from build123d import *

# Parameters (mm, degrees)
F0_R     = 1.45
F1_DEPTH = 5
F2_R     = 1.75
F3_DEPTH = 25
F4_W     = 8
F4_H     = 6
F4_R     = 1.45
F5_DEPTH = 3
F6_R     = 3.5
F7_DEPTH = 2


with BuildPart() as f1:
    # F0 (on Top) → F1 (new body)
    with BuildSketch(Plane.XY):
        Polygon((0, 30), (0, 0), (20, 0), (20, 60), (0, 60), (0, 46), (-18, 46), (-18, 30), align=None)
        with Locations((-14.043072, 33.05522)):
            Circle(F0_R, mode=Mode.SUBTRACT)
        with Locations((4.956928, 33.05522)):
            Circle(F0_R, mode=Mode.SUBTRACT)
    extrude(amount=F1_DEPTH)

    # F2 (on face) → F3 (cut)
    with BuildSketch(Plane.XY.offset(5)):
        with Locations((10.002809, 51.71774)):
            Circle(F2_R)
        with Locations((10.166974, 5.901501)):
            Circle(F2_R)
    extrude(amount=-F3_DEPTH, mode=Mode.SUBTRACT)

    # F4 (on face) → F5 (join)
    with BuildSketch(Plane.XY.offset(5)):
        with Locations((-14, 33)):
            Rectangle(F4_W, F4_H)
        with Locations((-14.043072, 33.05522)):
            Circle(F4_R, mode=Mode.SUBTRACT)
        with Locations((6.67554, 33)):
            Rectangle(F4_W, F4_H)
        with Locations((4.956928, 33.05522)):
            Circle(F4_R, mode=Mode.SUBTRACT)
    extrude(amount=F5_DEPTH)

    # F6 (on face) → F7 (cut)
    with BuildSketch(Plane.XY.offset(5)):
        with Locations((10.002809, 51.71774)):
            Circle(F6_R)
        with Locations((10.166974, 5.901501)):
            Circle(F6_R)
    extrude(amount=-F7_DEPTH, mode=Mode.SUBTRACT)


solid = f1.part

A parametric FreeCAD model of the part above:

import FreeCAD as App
import Part
import Sketcher

V = App.Vector


def add_polygon(sketch, points):
    """Adds a closed chain of lines whose ends are joined by coincident constraints."""
    first, n = sketch.GeometryCount, len(points)
    for a, b in zip(points, points[1:] + points[:1]):
        sketch.addGeometry(Part.LineSegment(App.Vector(*a, 0), App.Vector(*b, 0)), False)
    for i in range(n):
        sketch.addConstraint(Sketcher.Constraint("Coincident", first + i, 2, first + (i + 1) % n, 1))

doc = App.newDocument("Part")
body = doc.addObject("PartDesign::Body", "Body")

# Sketch on XY plane
sketch1 = body.newObject("Sketcher::SketchObject", "Sketch")
sketch1.AttachmentSupport = (doc.getObject("XY_Plane"), [""])
sketch1.MapMode = "FlatFace"
add_polygon(sketch1, [(0, 30), (0, 0), (20, 0), (20, 60), (0, 60), (0, 46), (-18, 46), (-18, 30)])  # lines 0-7
sketch1.addGeometry(Part.Circle(V(-14, 33.1, 0), V(0, 0, 1), 1.4), False)  # 8
sketch1.addGeometry(Part.Circle(V(5, 33.1, 0), V(0, 0, 1), 1.4), False)  # 9
sketch1.addConstraint(Sketcher.Constraint("Vertical", 0))
sketch1.addConstraint(Sketcher.Constraint("Horizontal", 1))
sketch1.addConstraint(Sketcher.Constraint("Vertical", 2))
sketch1.addConstraint(Sketcher.Constraint("Horizontal", 3))
sketch1.addConstraint(Sketcher.Constraint("Vertical", 4))
sketch1.addConstraint(Sketcher.Constraint("Horizontal", 5))
sketch1.addConstraint(Sketcher.Constraint("Vertical", 6))
sketch1.addConstraint(Sketcher.Constraint("Horizontal", 7))
sketch1.addConstraint(Sketcher.Constraint("Coincident", 0, 2, -1, 1))
sketch1.addConstraint(Sketcher.Constraint("Equal", 8, 9))
sketch1.addConstraint(Sketcher.Constraint("PointOnObject", 3, 2, -2))
sketch1.addConstraint(Sketcher.Constraint("Horizontal", 8, 3, 9, 3))
sketch1.addConstraint(Sketcher.Constraint("Diameter", 8, 2.9))
sketch1.addConstraint(Sketcher.Constraint("DistanceX", 1, 1, 1, 2, 20.0))
sketch1.addConstraint(Sketcher.Constraint("DistanceX", 5, 2, 5, 1, 18.0))
sketch1.addConstraint(Sketcher.Constraint("DistanceY", 0, 2, 0, 1, 30.0))
sketch1.addConstraint(Sketcher.Constraint("DistanceY", 2, 1, 2, 2, 60.0))
sketch1.addConstraint(Sketcher.Constraint("DistanceY", 4, 2, 4, 1, 14.0))
sketch1.addConstraint(Sketcher.Constraint("DistanceX", 8, 3, 9, 3, 19.0))
sketch1.addConstraint(Sketcher.Constraint("DistanceY", -1, 1, 8, 3, 33.05522))
sketch1.addConstraint(Sketcher.Constraint("DistanceX", 8, 3, -1, 1, 14.043072))
pad1 = body.newObject("PartDesign::Pad", "Pad")
pad1.Profile = sketch1
pad1.Length = 5

# Sketch on XY plane
sketch2 = body.newObject("Sketcher::SketchObject", "Sketch001")
sketch2.AttachmentSupport = (doc.getObject("XY_Plane"), [""])
sketch2.MapMode = "FlatFace"
sketch2.AttachmentOffset = App.Placement(V(0, 0, 5), App.Rotation())
sketch2.addGeometry(Part.Circle(V(10, 51.7, 0), V(0, 0, 1), 1.8), False)
sketch2.addGeometry(Part.Circle(V(10.2, 5.9, 0), V(0, 0, 1), 1.8), False)
sketch2.addConstraint(Sketcher.Constraint("Equal", 0, 1))
sketch2.addConstraint(Sketcher.Constraint("Diameter", 0, 3.5))
sketch2.addConstraint(Sketcher.Constraint("DistanceY", -1, 1, 1, 3, 5.901501))
sketch2.addConstraint(Sketcher.Constraint("DistanceX", -1, 1, 0, 3, 10.002809))
sketch2.addConstraint(Sketcher.Constraint("DistanceY", -1, 1, 0, 3, 51.71774))
sketch2.addConstraint(Sketcher.Constraint("DistanceX", -1, 1, 1, 3, 10.166974))
pocket1 = body.newObject("PartDesign::Pocket", "Pocket")
pocket1.Profile = sketch2
pocket1.Length = 25

# Sketch on XY plane
sketch3 = body.newObject("Sketcher::SketchObject", "Sketch002")
sketch3.AttachmentSupport = (doc.getObject("XY_Plane"), [""])
sketch3.MapMode = "FlatFace"
sketch3.AttachmentOffset = App.Placement(V(0, 0, 5), App.Rotation())
add_polygon(sketch3, [(-18, 36), (-18, 30), (-10, 30), (-10, 36)])  # lines 0-3
sketch3.addGeometry(Part.Circle(V(-14, 33.1, 0), V(0, 0, 1), 1.4), False)  # 4
add_polygon(sketch3, [(2.7, 36), (2.7, 30), (10.7, 30), (10.7, 36)])  # lines 5-8
sketch3.addGeometry(Part.Circle(V(5, 33.1, 0), V(0, 0, 1), 1.4), False)  # 9
sketch3.addConstraint(Sketcher.Constraint("Vertical", 0))
sketch3.addConstraint(Sketcher.Constraint("Horizontal", 1))
sketch3.addConstraint(Sketcher.Constraint("Vertical", 2))
sketch3.addConstraint(Sketcher.Constraint("Horizontal", 3))
sketch3.addConstraint(Sketcher.Constraint("Vertical", 5))
sketch3.addConstraint(Sketcher.Constraint("Horizontal", 6))
sketch3.addConstraint(Sketcher.Constraint("Vertical", 7))
sketch3.addConstraint(Sketcher.Constraint("Horizontal", 8))
sketch3.addConstraint(Sketcher.Constraint("Equal", 4, 9))
sketch3.addConstraint(Sketcher.Constraint("Horizontal", 4, 3, 9, 3))
sketch3.addConstraint(Sketcher.Constraint("Horizontal", 1, 2, 5, 2))
sketch3.addConstraint(Sketcher.Constraint("Horizontal", 3, 2, 7, 2))
sketch3.addConstraint(Sketcher.Constraint("Equal", 3, 6))
sketch3.addConstraint(Sketcher.Constraint("Diameter", 4, 2.9))
sketch3.addConstraint(Sketcher.Constraint("DistanceX", 1, 1, 1, 2, 8.0))
sketch3.addConstraint(Sketcher.Constraint("DistanceY", 0, 2, 0, 1, 6.0))
sketch3.addConstraint(Sketcher.Constraint("DistanceX", 0, 2, -1, 1, 18.0))
sketch3.addConstraint(Sketcher.Constraint("DistanceY", -1, 1, 0, 2, 30.0))
sketch3.addConstraint(Sketcher.Constraint("DistanceX", 4, 3, 9, 3, 19.0))
sketch3.addConstraint(Sketcher.Constraint("DistanceY", -1, 1, 4, 3, 33.05522))
sketch3.addConstraint(Sketcher.Constraint("DistanceX", -1, 1, 5, 2, 2.67554))
sketch3.addConstraint(Sketcher.Constraint("DistanceX", 4, 3, 5, 2, 16.718612))
pad2 = body.newObject("PartDesign::Pad", "Pad001")
pad2.Profile = sketch3
pad2.Length = 3

# Sketch on XY plane
sketch4 = body.newObject("Sketcher::SketchObject", "Sketch003")
sketch4.AttachmentSupport = (doc.getObject("XY_Plane"), [""])
sketch4.MapMode = "FlatFace"
sketch4.AttachmentOffset = App.Placement(V(0, 0, 5), App.Rotation())
sketch4.addGeometry(Part.Circle(V(10, 51.7, 0), V(0, 0, 1), 3.5), False)
sketch4.addGeometry(Part.Circle(V(10.2, 5.9, 0), V(0, 0, 1), 3.5), False)
sketch4.addConstraint(Sketcher.Constraint("Equal", 0, 1))
sketch4.addConstraint(Sketcher.Constraint("Diameter", 0, 7.0))
sketch4.addConstraint(Sketcher.Constraint("DistanceY", -1, 1, 1, 3, 5.901501))
sketch4.addConstraint(Sketcher.Constraint("DistanceX", -1, 1, 0, 3, 10.002809))
sketch4.addConstraint(Sketcher.Constraint("DistanceY", -1, 1, 0, 3, 51.71774))
sketch4.addConstraint(Sketcher.Constraint("DistanceX", -1, 1, 1, 3, 10.166974))
pocket2 = body.newObject("PartDesign::Pocket", "Pocket001")
pocket2.Profile = sketch4
pocket2.Length = 2

doc.recompute()
